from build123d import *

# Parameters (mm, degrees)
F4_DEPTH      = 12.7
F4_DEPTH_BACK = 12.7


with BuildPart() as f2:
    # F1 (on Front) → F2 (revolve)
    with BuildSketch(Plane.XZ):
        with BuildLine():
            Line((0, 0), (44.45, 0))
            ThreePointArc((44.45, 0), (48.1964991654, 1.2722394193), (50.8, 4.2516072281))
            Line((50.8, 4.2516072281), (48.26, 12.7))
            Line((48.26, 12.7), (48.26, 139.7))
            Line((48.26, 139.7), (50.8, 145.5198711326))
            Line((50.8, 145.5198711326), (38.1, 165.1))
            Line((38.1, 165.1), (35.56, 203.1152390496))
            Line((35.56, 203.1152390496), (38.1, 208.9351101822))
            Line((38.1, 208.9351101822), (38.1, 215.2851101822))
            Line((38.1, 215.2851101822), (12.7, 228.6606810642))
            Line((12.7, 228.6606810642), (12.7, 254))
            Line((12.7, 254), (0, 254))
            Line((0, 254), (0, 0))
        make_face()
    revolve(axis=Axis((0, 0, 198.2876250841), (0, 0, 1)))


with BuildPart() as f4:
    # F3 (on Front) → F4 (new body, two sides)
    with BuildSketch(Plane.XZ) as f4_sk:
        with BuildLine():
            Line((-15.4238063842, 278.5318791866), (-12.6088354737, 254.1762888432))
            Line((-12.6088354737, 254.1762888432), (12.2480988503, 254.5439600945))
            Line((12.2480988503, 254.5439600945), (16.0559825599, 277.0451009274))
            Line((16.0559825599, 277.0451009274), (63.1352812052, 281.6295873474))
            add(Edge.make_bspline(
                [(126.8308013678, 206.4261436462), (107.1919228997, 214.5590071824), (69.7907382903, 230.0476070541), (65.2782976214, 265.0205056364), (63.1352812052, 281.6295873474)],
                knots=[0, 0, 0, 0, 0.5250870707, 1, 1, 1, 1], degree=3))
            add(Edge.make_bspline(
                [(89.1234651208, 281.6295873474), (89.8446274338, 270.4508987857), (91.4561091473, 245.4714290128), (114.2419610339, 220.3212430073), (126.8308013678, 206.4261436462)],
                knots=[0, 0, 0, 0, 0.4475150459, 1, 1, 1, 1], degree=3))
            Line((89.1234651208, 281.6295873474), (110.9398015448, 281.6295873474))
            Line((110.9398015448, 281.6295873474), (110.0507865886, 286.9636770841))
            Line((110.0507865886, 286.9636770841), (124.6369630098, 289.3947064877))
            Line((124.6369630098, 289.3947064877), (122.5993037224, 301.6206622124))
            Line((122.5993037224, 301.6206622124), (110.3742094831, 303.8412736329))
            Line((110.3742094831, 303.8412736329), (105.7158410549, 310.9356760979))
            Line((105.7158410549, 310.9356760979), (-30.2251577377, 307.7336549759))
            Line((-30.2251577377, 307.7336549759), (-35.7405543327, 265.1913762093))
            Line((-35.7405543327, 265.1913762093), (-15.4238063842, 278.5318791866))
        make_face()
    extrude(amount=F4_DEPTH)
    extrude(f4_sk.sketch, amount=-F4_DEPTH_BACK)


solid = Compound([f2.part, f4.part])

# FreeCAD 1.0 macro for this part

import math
import FreeCAD as App
import Part
import Sketcher
from FreeCAD import Vector
Q = App.Units.Quantity

doc = App.newDocument("Part")
body = doc.addObject("PartDesign::Body", "Body")

sketch1 = body.newObject("Sketcher::SketchObject", "Sketch")
sketch1.AttachmentSupport = (doc.getObject("XZ_Plane"), [""])
sketch1.MapMode = "FlatFace"
sketch1.addGeometry(Part.LineSegment(Vector(0, 0, 0), Vector(44.45, 0, 0)), False)
sketch1.addGeometry(Part.ArcOfCircle(Part.Circle(Vector(43.957077, 7.60404, 0), Vector(0, 0, 1), 7.62), math.radians(-86.291059), math.radians(-26.100808)), False)
sketch1.addGeometry(Part.LineSegment(Vector(50.8, 4.251607, 0), Vector(48.26, 12.7, 0)), False)
sketch1.addGeometry(Part.LineSegment(Vector(48.26, 12.7, 0), Vector(48.26, 139.7, 0)), False)
sketch1.addGeometry(Part.LineSegment(Vector(48.26, 139.7, 0), Vector(50.8, 145.519871, 0)), False)
sketch1.addGeometry(Part.LineSegment(Vector(50.8, 145.519871, 0), Vector(38.1, 165.1, 0)), False)
sketch1.addGeometry(Part.LineSegment(Vector(38.1, 165.1, 0), Vector(35.56, 203.115239, 0)), False)
sketch1.addGeometry(Part.LineSegment(Vector(35.56, 203.115239, 0), Vector(38.1, 208.93511, 0)), False)
sketch1.addGeometry(Part.LineSegment(Vector(38.1, 208.93511, 0), Vector(38.1, 215.28511, 0)), False)
sketch1.addGeometry(Part.LineSegment(Vector(38.1, 215.28511, 0), Vector(12.7, 228.660681, 0)), False)
sketch1.addGeometry(Part.LineSegment(Vector(12.7, 228.660681, 0), Vector(12.7, 254, 0)), False)
sketch1.addGeometry(Part.LineSegment(Vector(12.7, 254, 0), Vector(0, 254, 0)), False)
sketch1.addGeometry(Part.LineSegment(Vector(0, 254, 0), Vector(0, 0, 0)), False)
sketch1.addConstraint(Sketcher.Constraint("Coincident", 0, 2, 1, 1))
sketch1.addConstraint(Sketcher.Constraint("Coincident", 1, 2, 2, 1))
sketch1.addConstraint(Sketcher.Constraint("Coincident", 2, 2, 3, 1))
sketch1.addConstraint(Sketcher.Constraint("Coincident", 3, 2, 4, 1))
sketch1.addConstraint(Sketcher.Constraint("Coincident", 4, 2, 5, 1))
sketch1.addConstraint(Sketcher.Constraint("Coincident", 5, 2, 6, 1))
sketch1.addConstraint(Sketcher.Constraint("Coincident", 6, 2, 7, 1))
sketch1.addConstraint(Sketcher.Constraint("Coincident", 7, 2, 8, 1))
sketch1.addConstraint(Sketcher.Constraint("Coincident", 8, 2, 9, 1))
sketch1.addConstraint(Sketcher.Constraint("Coincident", 9, 2, 10, 1))
sketch1.addConstraint(Sketcher.Constraint("Coincident", 10, 2, 11, 1))
sketch1.addConstraint(Sketcher.Constraint("Coincident", 11, 2, 12, 1))
sketch1.addConstraint(Sketcher.Constraint("Coincident", 12, 2, 0, 1))
sketch1.addConstraint(Sketcher.Constraint("Horizontal", 0))
sketch1.addConstraint(Sketcher.Constraint("Vertical", 3))
sketch1.addConstraint(Sketcher.Constraint("Vertical", 8))
sketch1.addConstraint(Sketcher.Constraint("Vertical", 10))
sketch1.addConstraint(Sketcher.Constraint("Horizontal", 11))
sketch1.addConstraint(Sketcher.Constraint("Vertical", 12))
sketch1.addConstraint(Sketcher.Constraint("Coincident", 12, 2, -1, 1))
sketch1.addConstraint(Sketcher.Constraint("Parallel", 4, 7))
sketch1.addConstraint(Sketcher.Constraint("Vertical", 1, 2, 4, 2))
sketch1.addConstraint(Sketcher.Constraint("Vertical", 5, 2, 7, 2))
sketch1.addConstraint(Sketcher.Constraint("Equal", 4, 7))
sketch1.addConstraint(Sketcher.Constraint("Radius", 1, Q("0.3 in")))
sketch1.addConstraint(Sketcher.Constraint("DistanceY", 3, 1, 3, 2, Q("5 in")))
sketch1.addConstraint(Sketcher.Constraint("DistanceY", 12, 2, 12, 1, Q("10 in")))
sketch1.addConstraint(Sketcher.Constraint("DistanceX", 11, 2, 11, 1, Q("0.5 in")))
sketch1.addConstraint(Sketcher.Constraint("DistanceX", -1, 1, 1, 2, Q("2 in")))
sketch1.addConstraint(Sketcher.Constraint("DistanceY", 3, 2, 5, 2, Q("1 in")))
sketch1.addConstraint(Sketcher.Constraint("DistanceX", 9, 2, 8, 2, Q("1 in")))
sketch1.addConstraint(Sketcher.Constraint("Distance", 6, Q("1.5 in")))
sketch1.addConstraint(Sketcher.Constraint("DistanceX", 0, 1, 0, 2, Q("1.75 in")))
sketch1.addConstraint(Sketcher.Constraint("DistanceY", 8, 1, 8, 2, Q("0.25 in")))
sketch1.addConstraint(Sketcher.Constraint("DistanceX", -1, 1, 2, 2, Q("1.9 in")))
sketch1.addConstraint(Sketcher.Constraint("DistanceY", -1, 1, 2, 2, Q("0.5 in")))
sketch1.addConstraint(Sketcher.Constraint("Distance", 4, Q("0.25 in")))
sketch1.addConstraint(Sketcher.Constraint("DistanceY", 10, 1, 10, 2, 25.339319))
sketch1.addConstraint(Sketcher.Constraint("DistanceY", 1, 3, 6, 2, 195.511199))
revolution = body.newObject("PartDesign::Revolution", "Revolution")
revolution.Profile = sketch1
revolution.ReferenceAxis = (sketch1, ["V_Axis"])
revolution.Angle = 360
body2 = doc.addObject("PartDesign::Body", "Body001")

sketch2 = body2.newObject("Sketcher::SketchObject", "Sketch001")
sketch2.AttachmentSupport = (doc.getObject("XZ_Plane001"), [""])
sketch2.MapMode = "FlatFace"
sketch2.addGeometry(Part.LineSegment(Vector(-15.423806, 278.531879, 0), Vector(-12.608835, 254.176289, 0)), False)
sketch2.addGeometry(Part.LineSegment(Vector(-12.608835, 254.176289, 0), Vector(12.248099, 254.54396, 0)), False)
sketch2.addGeometry(Part.LineSegment(Vector(12.248099, 254.54396, 0), Vector(16.055983, 277.045101, 0)), False)
sketch2.addGeometry(Part.LineSegment(Vector(16.055983, 277.045101, 0), Vector(63.135281, 281.629587, 0)), False)
sketch2.addGeometry(Part.BSplineCurve([Vector(126.830801, 206.426144, 0), Vector(107.191923, 214.559007, 0), Vector(69.790738, 230.047607, 0), Vector(65.278298, 265.020506, 0), Vector(63.135281, 281.629587, 0)], [4, 1, 4], [0, 0.525087071, 1], False, 3, [1, 1, 1, 1, 1], False), False)
sketch2.addGeometry(Part.BSplineCurve([Vector(89.123465, 281.629587, 0), Vector(89.844627, 270.450899, 0), Vector(91.456109, 245.471429, 0), Vector(114.241961, 220.321243, 0), Vector(126.830801, 206.426144, 0)], [4, 1, 4], [0, 0.447515046, 1], False, 3, [1, 1, 1, 1, 1], False), False)
sketch2.addGeometry(Part.LineSegment(Vector(89.123465, 281.629587, 0), Vector(110.939802, 281.629587, 0)), False)
sketch2.addGeometry(Part.LineSegment(Vector(110.939802, 281.629587, 0), Vector(110.050787, 286.963677, 0)), False)
sketch2.addGeometry(Part.LineSegment(Vector(110.050787, 286.963677, 0), Vector(124.636963, 289.394706, 0)), False)
sketch2.addGeometry(Part.LineSegment(Vector(124.636963, 289.394706, 0), Vector(122.599304, 301.620662, 0)), False)
sketch2.addGeometry(Part.LineSegment(Vector(122.599304, 301.620662, 0), Vector(110.374209, 303.841274, 0)), False)
sketch2.addGeometry(Part.LineSegment(Vector(110.374209, 303.841274, 0), Vector(105.715841, 310.935676, 0)), False)
sketch2.addGeometry(Part.LineSegment(Vector(105.715841, 310.935676, 0), Vector(-30.225158, 307.733655, 0)), False)
sketch2.addGeometry(Part.LineSegment(Vector(-30.225158, 307.733655, 0), Vector(-35.740554, 265.191376, 0)), False)
sketch2.addGeometry(Part.LineSegment(Vector(-35.740554, 265.191376, 0), Vector(-15.423806, 278.531879, 0)), False)
sketch2.addConstraint(Sketcher.Constraint("Block", 4))
sketch2.addConstraint(Sketcher.Constraint("Block", 5))
sketch2.addConstraint(Sketcher.Constraint("Coincident", 0, 2, 1, 1))
sketch2.addConstraint(Sketcher.Constraint("Coincident", 1, 2, 2, 1))
sketch2.addConstraint(Sketcher.Constraint("Coincident", 2, 2, 3, 1))
sketch2.addConstraint(Sketcher.Constraint("Coincident", 3, 2, 4, 2))
sketch2.addConstraint(Sketcher.Constraint("Coincident", 5, 1, 6, 1))
sketch2.addConstraint(Sketcher.Constraint("Coincident", 6, 2, 7, 1))
sketch2.addConstraint(Sketcher.Constraint("Coincident", 7, 2, 8, 1))
sketch2.addConstraint(Sketcher.Constraint("Coincident", 8, 2, 9, 1))
sketch2.addConstraint(Sketcher.Constraint("Coincident", 9, 2, 10, 1))
sketch2.addConstraint(Sketcher.Constraint("Coincident", 10, 2, 11, 1))
sketch2.addConstraint(Sketcher.Constraint("Coincident", 11, 2, 12, 1))
sketch2.addConstraint(Sketcher.Constraint("Coincident", 12, 2, 13, 1))
sketch2.addConstraint(Sketcher.Constraint("Coincident", 13, 2, 14, 1))
sketch2.addConstraint(Sketcher.Constraint("Coincident", 14, 2, 0, 1))
sketch2.addConstraint(Sketcher.Constraint("Horizontal", 6))
sketch2.addConstraint(Sketcher.Constraint("Perpendicular", 7, 8))
sketch2.addConstraint(Sketcher.Constraint("Perpendicular", 8, 9))
sketch2.addConstraint(Sketcher.Constraint("Perpendicular", 11, 14))
sketch2.addConstraint(Sketcher.Constraint("DistanceX", 1, 2, 6, 2, Q("3.8855001 in")))
sketch2.addConstraint(Sketcher.Constraint("DistanceX", -1, 1, 1, 2, 12.248099))
sketch2.addConstraint(Sketcher.Constraint("DistanceY", -1, 1, 2, 2, 277.045101))
sketch2.addConstraint(Sketcher.Constraint("DistanceX", 2, 2, 3, 2, 47.079299))
sketch2.addConstraint(Sketcher.Constraint("DistanceY", 0, 2, 3, 2, 27.453299))
sketch2.addConstraint(Sketcher.Constraint("DistanceY", 7, 2, 11, 2, 23.971999))
sketch2.addConstraint(Sketcher.Constraint("DistanceX", 12, 2, 11, 2, 135.940999))
sketch2.addConstraint(Sketcher.Constraint("Distance", 2, 22.821072))
sketch2.addConstraint(Sketcher.Constraint("Distance", 13, 42.898311))
sketch2.addConstraint(Sketcher.Constraint("Distance", 14, 24.305128))
sketch2.addConstraint(Sketcher.Constraint("DistanceX", -1, 1, 10, 2, 110.374209))
sketch2.addConstraint(Sketcher.Constraint("DistanceX", -1, 1, 11, 2, 105.715841))
sketch2.addConstraint(Sketcher.Constraint("DistanceY", -1, 1, 14, 2, 278.531879))
sketch2.addConstraint(Sketcher.Constraint("DistanceX", 0, 2, 2, 2, 28.664818))
sketch2.addConstraint(Sketcher.Constraint("DistanceY", 6, 2, 7, 2, 5.33409))
sketch2.addConstraint(Sketcher.Constraint("DistanceY", 7, 2, 8, 2, 2.431029))
sketch2.addConstraint(Sketcher.Constraint("DistanceX", 6, 2, 8, 2, 13.697161))
sketch2.addConstraint(Sketcher.Constraint("DistanceX", 9, 2, 8, 2, 2.037659))
sketch2.addConstraint(Sketcher.Constraint("DistanceY", 9, 2, 10, 2, 2.220611))
sketch2.addConstraint(Sketcher.Constraint("DistanceY", 12, 2, 11, 2, 3.202021))
pad1 = body2.newObject("PartDesign::Pad", "Pad")
pad1.Profile = sketch2
pad1.Type = "TwoLengths"
pad1.Length = Q("0.5 in")
pad1.Length2 = Q("0.5 in")

doc.recompute()
